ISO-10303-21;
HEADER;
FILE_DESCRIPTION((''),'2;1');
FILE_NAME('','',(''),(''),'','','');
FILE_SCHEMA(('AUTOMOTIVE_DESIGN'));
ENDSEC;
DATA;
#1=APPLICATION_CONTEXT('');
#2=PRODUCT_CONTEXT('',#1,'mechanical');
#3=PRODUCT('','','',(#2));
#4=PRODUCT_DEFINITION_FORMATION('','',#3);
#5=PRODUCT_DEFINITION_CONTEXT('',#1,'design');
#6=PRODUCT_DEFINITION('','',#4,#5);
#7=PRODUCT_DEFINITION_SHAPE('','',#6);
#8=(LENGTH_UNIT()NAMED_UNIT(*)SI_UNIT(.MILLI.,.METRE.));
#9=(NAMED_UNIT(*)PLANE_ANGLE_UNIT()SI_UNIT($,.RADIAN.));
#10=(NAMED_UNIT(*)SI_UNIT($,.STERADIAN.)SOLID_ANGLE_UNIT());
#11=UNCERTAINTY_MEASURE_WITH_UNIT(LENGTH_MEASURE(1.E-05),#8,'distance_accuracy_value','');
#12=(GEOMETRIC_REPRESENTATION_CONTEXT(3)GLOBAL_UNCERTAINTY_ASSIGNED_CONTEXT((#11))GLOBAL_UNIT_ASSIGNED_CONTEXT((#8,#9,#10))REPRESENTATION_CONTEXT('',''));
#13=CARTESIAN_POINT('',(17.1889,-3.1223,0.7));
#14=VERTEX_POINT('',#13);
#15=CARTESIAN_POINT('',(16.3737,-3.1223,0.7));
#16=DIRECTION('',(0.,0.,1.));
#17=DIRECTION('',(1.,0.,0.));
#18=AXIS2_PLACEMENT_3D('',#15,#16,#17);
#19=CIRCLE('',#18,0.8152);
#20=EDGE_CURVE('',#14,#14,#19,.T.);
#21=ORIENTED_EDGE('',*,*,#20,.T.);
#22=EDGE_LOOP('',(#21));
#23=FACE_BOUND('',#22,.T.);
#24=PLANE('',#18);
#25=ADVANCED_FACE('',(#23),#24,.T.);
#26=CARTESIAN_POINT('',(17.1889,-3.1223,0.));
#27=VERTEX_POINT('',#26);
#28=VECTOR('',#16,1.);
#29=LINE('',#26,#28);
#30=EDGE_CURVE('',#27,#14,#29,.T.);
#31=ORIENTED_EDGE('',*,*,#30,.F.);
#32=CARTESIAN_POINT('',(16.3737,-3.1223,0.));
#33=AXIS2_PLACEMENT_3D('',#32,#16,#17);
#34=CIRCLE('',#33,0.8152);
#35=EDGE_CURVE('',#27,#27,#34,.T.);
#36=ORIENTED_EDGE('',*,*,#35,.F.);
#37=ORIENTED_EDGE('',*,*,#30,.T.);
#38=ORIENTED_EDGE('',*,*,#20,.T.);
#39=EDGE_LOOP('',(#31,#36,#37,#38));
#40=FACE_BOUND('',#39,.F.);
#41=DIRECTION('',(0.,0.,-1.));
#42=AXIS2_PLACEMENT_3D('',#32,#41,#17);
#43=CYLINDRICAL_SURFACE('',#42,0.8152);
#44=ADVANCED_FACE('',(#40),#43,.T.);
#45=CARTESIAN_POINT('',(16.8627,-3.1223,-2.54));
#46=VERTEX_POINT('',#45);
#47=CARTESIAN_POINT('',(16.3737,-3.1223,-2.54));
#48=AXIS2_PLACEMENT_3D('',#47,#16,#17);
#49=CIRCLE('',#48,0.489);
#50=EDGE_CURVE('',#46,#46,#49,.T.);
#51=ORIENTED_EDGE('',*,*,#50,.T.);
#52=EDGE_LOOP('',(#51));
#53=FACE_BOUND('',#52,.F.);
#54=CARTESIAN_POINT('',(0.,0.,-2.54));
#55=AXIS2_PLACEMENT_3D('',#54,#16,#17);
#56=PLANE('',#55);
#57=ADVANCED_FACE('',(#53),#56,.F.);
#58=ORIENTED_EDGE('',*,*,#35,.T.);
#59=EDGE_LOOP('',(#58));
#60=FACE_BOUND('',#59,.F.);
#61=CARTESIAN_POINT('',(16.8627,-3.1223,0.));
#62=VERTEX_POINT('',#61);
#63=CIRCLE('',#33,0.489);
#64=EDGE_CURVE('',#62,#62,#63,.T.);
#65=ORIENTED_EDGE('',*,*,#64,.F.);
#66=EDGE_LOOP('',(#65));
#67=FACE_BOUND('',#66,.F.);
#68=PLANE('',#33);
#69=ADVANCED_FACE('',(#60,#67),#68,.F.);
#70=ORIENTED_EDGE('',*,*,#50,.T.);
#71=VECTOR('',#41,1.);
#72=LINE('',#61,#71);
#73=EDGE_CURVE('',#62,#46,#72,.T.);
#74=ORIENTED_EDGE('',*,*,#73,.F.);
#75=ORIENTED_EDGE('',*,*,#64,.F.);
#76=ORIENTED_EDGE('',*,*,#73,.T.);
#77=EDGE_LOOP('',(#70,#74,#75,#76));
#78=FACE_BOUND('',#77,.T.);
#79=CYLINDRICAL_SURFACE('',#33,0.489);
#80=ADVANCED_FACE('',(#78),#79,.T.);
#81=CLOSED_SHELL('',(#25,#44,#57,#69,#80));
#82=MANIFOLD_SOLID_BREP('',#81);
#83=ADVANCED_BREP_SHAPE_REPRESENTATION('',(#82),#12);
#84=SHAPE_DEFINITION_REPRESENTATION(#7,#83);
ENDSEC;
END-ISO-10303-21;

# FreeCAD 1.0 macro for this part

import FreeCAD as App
import Part
import Sketcher
from FreeCAD import Vector
Q = App.Units.Quantity

doc = App.newDocument("Part")
body = doc.addObject("PartDesign::Body", "Body")

# Sketch on XY plane
sketch1 = body.newObject("Sketcher::SketchObject", "Sketch")
sketch1.AttachmentSupport = (doc.getObject("XY_Plane"), [""])
sketch1.MapMode = "FlatFace"
sketch1.addGeometry(Part.Circle(Vector(16.37, -3.12, 0), Vector(0, 0, 1), 0.49), False)
sketch1.addConstraint([
    Sketcher.Constraint("Diameter", 0, Q("0.978 mm")),
    Sketcher.Constraint("DistanceX", -1, 1, 0, 3, Q("16.3737 mm")),
    Sketcher.Constraint("DistanceY", 0, 3, -1, 1, Q("3.1223 mm")),
])
pad1 = body.newObject("PartDesign::Pad", "Pad")
pad1.Profile = sketch1
pad1.Length = 2.54
pad1.Reversed = True

# Sketch on XY plane
sketch2 = body.newObject("Sketcher::SketchObject", "Sketch001")
sketch2.AttachmentSupport = (doc.getObject("XY_Plane"), [""])
sketch2.MapMode = "FlatFace"
sketch2.addGeometry(Part.Circle(Vector(16.4, -3.1, 0), Vector(0, 0, 1), 0.8), False)
sketch2.addConstraint([
    Sketcher.Constraint("Diameter", 0, Q("1.6304 mm")),
    Sketcher.Constraint("DistanceX", -1, 1, 0, 3, Q("16.3737 mm")),
    Sketcher.Constraint("DistanceY", 0, 3, -1, 1, Q("3.1223 mm")),
])
pad2 = body.newObject("PartDesign::Pad", "Pad001")
pad2.Profile = sketch2
pad2.Length = 0.7

doc.recompute()
